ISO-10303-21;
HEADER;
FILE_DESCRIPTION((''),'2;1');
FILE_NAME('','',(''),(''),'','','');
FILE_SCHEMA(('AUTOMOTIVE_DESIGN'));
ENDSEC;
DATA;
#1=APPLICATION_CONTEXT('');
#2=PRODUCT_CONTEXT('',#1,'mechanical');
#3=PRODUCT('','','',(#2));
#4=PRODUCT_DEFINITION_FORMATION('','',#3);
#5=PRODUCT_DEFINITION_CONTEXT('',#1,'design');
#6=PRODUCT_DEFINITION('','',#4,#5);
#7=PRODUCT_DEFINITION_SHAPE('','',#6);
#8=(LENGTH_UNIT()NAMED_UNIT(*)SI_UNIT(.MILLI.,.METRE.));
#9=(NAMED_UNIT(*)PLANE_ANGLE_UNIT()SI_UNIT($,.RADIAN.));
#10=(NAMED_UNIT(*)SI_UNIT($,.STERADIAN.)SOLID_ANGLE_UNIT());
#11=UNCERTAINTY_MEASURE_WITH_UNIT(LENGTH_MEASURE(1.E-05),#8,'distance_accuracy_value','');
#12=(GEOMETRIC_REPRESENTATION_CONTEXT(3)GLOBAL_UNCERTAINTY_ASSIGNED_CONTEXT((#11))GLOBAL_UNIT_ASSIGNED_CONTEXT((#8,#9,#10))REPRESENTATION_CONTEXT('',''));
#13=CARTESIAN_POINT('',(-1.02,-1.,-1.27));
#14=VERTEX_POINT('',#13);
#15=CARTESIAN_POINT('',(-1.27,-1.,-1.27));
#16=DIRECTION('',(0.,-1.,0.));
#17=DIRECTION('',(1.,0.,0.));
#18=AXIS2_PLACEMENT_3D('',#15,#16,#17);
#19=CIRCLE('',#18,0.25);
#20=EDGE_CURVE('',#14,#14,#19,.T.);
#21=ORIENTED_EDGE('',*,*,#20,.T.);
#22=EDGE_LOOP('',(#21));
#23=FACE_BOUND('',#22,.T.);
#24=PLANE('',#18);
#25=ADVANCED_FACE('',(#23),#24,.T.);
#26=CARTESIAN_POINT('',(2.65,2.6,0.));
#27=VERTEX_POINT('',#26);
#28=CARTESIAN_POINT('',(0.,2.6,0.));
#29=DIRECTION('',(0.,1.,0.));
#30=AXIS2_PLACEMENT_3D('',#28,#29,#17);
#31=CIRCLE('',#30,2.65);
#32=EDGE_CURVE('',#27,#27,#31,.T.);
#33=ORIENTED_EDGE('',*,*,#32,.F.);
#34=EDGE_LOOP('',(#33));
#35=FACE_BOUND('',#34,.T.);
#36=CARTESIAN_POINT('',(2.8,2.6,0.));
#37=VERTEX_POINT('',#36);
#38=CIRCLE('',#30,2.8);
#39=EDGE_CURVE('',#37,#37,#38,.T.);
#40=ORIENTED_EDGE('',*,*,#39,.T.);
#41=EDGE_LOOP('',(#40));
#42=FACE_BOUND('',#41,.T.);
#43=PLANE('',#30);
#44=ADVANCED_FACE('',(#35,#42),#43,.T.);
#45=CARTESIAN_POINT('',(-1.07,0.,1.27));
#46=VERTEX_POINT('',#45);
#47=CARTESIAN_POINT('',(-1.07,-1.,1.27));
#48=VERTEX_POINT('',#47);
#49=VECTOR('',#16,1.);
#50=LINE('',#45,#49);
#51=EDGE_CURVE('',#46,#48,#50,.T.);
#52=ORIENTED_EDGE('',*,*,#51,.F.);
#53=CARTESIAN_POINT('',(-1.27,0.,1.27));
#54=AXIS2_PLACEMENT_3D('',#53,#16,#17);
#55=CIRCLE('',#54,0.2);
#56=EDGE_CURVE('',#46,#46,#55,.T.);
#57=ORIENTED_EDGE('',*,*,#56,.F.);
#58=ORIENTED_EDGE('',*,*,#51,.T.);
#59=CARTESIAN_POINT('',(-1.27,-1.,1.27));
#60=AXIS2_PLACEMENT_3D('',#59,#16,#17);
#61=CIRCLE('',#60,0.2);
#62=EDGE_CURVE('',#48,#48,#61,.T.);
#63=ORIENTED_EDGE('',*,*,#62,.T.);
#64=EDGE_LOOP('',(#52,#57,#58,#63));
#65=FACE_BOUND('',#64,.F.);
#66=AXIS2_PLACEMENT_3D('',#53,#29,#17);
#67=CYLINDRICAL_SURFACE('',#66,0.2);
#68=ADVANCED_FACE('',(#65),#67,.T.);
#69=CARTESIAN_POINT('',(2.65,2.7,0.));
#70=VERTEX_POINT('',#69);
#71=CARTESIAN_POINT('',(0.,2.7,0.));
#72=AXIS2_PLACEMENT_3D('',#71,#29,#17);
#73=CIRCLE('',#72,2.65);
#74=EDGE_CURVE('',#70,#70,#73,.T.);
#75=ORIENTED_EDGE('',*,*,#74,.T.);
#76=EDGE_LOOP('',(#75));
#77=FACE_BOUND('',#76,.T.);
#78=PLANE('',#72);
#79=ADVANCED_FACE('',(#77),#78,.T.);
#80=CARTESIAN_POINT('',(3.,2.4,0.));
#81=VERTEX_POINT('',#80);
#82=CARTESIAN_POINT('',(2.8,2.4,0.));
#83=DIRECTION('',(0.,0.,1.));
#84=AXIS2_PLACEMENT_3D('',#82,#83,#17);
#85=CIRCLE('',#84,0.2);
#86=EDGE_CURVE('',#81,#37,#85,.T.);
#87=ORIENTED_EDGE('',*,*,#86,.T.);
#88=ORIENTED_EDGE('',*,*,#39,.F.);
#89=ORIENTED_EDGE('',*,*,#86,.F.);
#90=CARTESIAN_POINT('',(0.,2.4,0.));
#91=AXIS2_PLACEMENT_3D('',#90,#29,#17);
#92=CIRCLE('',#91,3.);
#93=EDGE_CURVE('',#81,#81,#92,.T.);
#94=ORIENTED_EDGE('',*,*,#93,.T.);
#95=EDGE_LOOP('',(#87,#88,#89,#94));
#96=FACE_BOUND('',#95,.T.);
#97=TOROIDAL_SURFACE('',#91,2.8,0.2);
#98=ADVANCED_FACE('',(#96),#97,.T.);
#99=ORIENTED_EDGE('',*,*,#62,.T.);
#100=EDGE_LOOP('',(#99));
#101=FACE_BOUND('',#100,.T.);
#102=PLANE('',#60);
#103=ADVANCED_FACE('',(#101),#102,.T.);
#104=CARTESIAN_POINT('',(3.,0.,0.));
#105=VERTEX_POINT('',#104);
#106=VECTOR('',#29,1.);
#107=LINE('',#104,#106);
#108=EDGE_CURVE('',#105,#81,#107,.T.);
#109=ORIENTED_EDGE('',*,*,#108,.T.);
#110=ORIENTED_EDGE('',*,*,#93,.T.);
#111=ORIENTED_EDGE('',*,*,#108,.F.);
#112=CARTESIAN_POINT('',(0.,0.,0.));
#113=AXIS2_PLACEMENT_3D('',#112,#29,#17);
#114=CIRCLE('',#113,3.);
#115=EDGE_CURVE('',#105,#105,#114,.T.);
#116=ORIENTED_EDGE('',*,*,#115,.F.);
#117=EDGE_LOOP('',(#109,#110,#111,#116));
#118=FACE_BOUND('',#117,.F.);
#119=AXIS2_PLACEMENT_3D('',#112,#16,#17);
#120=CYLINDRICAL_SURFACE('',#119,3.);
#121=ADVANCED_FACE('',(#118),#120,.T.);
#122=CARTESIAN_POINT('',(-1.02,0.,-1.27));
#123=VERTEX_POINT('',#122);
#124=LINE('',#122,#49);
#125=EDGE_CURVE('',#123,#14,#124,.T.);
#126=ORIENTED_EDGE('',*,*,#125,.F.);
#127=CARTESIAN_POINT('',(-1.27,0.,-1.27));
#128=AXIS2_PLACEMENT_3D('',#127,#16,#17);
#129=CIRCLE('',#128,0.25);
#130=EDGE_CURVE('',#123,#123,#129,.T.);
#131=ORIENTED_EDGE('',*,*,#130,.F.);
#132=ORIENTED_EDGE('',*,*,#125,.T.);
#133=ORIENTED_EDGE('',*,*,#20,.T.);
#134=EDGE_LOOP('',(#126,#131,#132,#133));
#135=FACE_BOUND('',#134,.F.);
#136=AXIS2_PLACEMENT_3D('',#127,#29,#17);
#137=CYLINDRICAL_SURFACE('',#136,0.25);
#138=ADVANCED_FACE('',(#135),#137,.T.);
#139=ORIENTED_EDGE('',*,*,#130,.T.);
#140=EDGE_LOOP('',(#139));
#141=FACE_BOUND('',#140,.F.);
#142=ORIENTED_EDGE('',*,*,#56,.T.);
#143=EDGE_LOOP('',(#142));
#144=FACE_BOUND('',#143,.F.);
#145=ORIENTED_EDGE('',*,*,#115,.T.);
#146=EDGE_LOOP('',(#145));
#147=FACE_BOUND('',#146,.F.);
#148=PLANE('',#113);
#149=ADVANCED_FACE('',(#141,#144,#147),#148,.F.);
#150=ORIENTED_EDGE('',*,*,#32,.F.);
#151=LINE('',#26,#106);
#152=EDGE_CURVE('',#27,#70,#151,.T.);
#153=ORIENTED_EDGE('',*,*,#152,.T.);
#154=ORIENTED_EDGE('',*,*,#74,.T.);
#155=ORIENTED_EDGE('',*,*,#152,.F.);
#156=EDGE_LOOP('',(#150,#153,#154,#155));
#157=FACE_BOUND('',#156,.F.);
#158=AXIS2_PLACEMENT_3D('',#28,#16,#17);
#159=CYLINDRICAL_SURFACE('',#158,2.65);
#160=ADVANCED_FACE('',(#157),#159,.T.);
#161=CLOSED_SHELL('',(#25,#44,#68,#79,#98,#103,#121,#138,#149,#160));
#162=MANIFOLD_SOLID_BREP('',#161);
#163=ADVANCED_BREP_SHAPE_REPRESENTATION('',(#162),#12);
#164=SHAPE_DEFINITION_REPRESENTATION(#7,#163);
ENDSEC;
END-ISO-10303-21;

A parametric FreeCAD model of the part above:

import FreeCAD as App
import Part
import Sketcher

V = App.Vector


def edges_at(feature, points):
    """Names of the edges that pass closest to the given points."""
    edges = feature.Shape.Edges
    near = lambda p: min(range(len(edges)), key=lambda i: edges[i].distToShape(Part.Vertex(*p))[0])
    return sorted({f"Edge{near(p) + 1}" for p in points})

doc = App.newDocument("Part")
body = doc.addObject("PartDesign::Body", "Body")

# Sketch on XZ plane
sketch1 = body.newObject("Sketcher::SketchObject", "Sketch")
sketch1.AttachmentSupport = (doc.getObject("XZ_Plane"), [""])
sketch1.MapMode = "FlatFace"
sketch1.addGeometry(Part.Circle(V(0, 0, 0), V(0, 0, 1), 3), False)
sketch1.addConstraint(Sketcher.Constraint("Coincident", 0, 3, -1, 1))
sketch1.addConstraint(Sketcher.Constraint("Diameter", 0, 6.0))
pad1 = body.newObject("PartDesign::Pad", "Pad")
pad1.Profile = sketch1
pad1.Length = 2.6
pad1.Reversed = True
doc.recompute()

fillet = body.newObject("PartDesign::Fillet", "Fillet")
fillet.Base = (pad1, edges_at(pad1, [(-3, 2.6, 0)]))
fillet.Radius = 0.2

# Sketch on XZ plane
sketch2 = body.newObject("Sketcher::SketchObject", "Sketch001")
sketch2.AttachmentSupport = (doc.getObject("XZ_Plane"), [""])
sketch2.MapMode = "FlatFace"
sketch2.AttachmentOffset = App.Placement(V(0, 0, -2.6), App.Rotation())
sketch2.addGeometry(Part.Circle(V(0, 0, 0), V(0, 0, 1), 2.65), False)
sketch2.addConstraint(Sketcher.Constraint("Coincident", 0, 3, -1, 1))
sketch2.addConstraint(Sketcher.Constraint("Diameter", 0, 5.3))
pad2 = body.newObject("PartDesign::Pad", "Pad001")
pad2.Profile = sketch2
pad2.Length = 0.1
pad2.Reversed = True

# Sketch on XZ plane
sketch3 = body.newObject("Sketcher::SketchObject", "Sketch002")
sketch3.AttachmentSupport = (doc.getObject("XZ_Plane"), [""])
sketch3.MapMode = "FlatFace"
sketch3.addGeometry(Part.Circle(V(-1.27, 1.27, 0), V(0, 0, 1), 0.2), False)
sketch3.addGeometry(Part.Circle(V(-1.27, -1.27, 0), V(0, 0, 1), 0.25), False)
sketch3.addConstraint(Sketcher.Constraint("Symmetric", 0, 3, 1, 3, -1))
sketch3.addConstraint(Sketcher.Constraint("Diameter", 0, 0.4))
sketch3.addConstraint(Sketcher.Constraint("Diameter", 1, 0.5))
sketch3.addConstraint(Sketcher.Constraint("DistanceX", 0, 3, -1, 1, 1.27))
sketch3.addConstraint(Sketcher.Constraint("DistanceY", -1, 1, 0, 3, 1.27))
pad3 = body.newObject("PartDesign::Pad", "Pad002")
pad3.Profile = sketch3
pad3.Length = 1

doc.recompute()
